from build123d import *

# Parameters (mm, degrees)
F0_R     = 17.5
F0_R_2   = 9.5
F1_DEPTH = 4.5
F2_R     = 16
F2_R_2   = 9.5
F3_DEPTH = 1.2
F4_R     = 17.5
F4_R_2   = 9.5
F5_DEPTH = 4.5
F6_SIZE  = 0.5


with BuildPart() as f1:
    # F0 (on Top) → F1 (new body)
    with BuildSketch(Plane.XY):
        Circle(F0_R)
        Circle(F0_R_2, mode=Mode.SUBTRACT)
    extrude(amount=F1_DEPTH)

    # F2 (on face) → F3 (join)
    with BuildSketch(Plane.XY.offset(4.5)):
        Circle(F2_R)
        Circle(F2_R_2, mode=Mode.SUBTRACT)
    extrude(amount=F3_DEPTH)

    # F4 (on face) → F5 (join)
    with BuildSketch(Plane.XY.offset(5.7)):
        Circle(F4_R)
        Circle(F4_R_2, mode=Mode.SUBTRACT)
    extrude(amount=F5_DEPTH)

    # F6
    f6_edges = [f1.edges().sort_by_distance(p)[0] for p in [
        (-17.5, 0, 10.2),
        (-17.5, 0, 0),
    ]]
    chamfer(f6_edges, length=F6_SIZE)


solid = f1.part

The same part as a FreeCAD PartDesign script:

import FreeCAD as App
import Part
import Sketcher

V = App.Vector
Q = App.Units.Quantity


def edges_at(feature, points):
    """Names of the edges that pass closest to the given points."""
    edges = feature.Shape.Edges
    near = lambda p: min(range(len(edges)), key=lambda i: edges[i].distToShape(Part.Vertex(*p))[0])
    return sorted({f"Edge{near(p) + 1}" for p in points})

doc = App.newDocument("Part")
body = doc.addObject("PartDesign::Body", "Body")

# Sketch on XY plane
sketch1 = body.newObject("Sketcher::SketchObject", "Sketch")
sketch1.AttachmentSupport = (doc.getObject("XY_Plane"), [""])
sketch1.MapMode = "FlatFace"
sketch1.addGeometry([
    Part.Circle(V(0, 0, 0), V(0, 0, 1), 17.5),
    Part.Circle(V(0, 0, 0), V(0, 0, 1), 9.5),
], False)
sketch1.addConstraint([
    Sketcher.Constraint("Coincident", 0, 3, -1, 1),
    Sketcher.Constraint("Coincident", 1, 3, -1, 1),
    Sketcher.Constraint("Diameter", 0, Q("35 mm")),
    Sketcher.Constraint("Diameter", 1, Q("19 mm")),
])
pad1 = body.newObject("PartDesign::Pad", "Pad")
pad1.Profile = sketch1
pad1.Length = 4.5

# Sketch on XY plane
sketch2 = body.newObject("Sketcher::SketchObject", "Sketch001")
sketch2.AttachmentSupport = (doc.getObject("XY_Plane"), [""])
sketch2.MapMode = "FlatFace"
sketch2.AttachmentOffset = App.Placement(V(0, 0, 4.5), App.Rotation())
sketch2.addGeometry([
    Part.Circle(V(0, 0, 0), V(0, 0, 1), 16),
    Part.Circle(V(0, 0, 0), V(0, 0, 1), 9.5),
], False)
sketch2.addConstraint([
    Sketcher.Constraint("Coincident", 0, 3, -1, 1),
    Sketcher.Constraint("Coincident", 1, 3, -1, 1),
    Sketcher.Constraint("Diameter", 0, Q("32 mm")),
    Sketcher.Constraint("Diameter", 1, Q("19 mm")),
])
pad2 = body.newObject("PartDesign::Pad", "Pad001")
pad2.Profile = sketch2
pad2.Length = 1.2

# Sketch on XY plane
sketch3 = body.newObject("Sketcher::SketchObject", "Sketch002")
sketch3.AttachmentSupport = (doc.getObject("XY_Plane"), [""])
sketch3.MapMode = "FlatFace"
sketch3.AttachmentOffset = App.Placement(V(0, 0, 5.7), App.Rotation())
sketch3.addGeometry([
    Part.Circle(V(0, 0, 0), V(0, 0, 1), 17.5),
    Part.Circle(V(0, 0, 0), V(0, 0, 1), 9.5),
], False)
sketch3.addConstraint([
    Sketcher.Constraint("Coincident", 0, 3, -1, 1),
    Sketcher.Constraint("Coincident", 1, 3, -1, 1),
    Sketcher.Constraint("Diameter", 0, Q("35 mm")),
    Sketcher.Constraint("Diameter", 1, Q("19 mm")),
])
pad3 = body.newObject("PartDesign::Pad", "Pad002")
pad3.Profile = sketch3
pad3.Length = 4.5
doc.recompute()

chamfer = body.newObject("PartDesign::Chamfer", "Chamfer")
chamfer.Base = (pad3, edges_at(pad3, [(-17.5, 0, 10.2), (-17.5, 0, 0)]))
chamfer.Size = 0.5

doc.recompute()
